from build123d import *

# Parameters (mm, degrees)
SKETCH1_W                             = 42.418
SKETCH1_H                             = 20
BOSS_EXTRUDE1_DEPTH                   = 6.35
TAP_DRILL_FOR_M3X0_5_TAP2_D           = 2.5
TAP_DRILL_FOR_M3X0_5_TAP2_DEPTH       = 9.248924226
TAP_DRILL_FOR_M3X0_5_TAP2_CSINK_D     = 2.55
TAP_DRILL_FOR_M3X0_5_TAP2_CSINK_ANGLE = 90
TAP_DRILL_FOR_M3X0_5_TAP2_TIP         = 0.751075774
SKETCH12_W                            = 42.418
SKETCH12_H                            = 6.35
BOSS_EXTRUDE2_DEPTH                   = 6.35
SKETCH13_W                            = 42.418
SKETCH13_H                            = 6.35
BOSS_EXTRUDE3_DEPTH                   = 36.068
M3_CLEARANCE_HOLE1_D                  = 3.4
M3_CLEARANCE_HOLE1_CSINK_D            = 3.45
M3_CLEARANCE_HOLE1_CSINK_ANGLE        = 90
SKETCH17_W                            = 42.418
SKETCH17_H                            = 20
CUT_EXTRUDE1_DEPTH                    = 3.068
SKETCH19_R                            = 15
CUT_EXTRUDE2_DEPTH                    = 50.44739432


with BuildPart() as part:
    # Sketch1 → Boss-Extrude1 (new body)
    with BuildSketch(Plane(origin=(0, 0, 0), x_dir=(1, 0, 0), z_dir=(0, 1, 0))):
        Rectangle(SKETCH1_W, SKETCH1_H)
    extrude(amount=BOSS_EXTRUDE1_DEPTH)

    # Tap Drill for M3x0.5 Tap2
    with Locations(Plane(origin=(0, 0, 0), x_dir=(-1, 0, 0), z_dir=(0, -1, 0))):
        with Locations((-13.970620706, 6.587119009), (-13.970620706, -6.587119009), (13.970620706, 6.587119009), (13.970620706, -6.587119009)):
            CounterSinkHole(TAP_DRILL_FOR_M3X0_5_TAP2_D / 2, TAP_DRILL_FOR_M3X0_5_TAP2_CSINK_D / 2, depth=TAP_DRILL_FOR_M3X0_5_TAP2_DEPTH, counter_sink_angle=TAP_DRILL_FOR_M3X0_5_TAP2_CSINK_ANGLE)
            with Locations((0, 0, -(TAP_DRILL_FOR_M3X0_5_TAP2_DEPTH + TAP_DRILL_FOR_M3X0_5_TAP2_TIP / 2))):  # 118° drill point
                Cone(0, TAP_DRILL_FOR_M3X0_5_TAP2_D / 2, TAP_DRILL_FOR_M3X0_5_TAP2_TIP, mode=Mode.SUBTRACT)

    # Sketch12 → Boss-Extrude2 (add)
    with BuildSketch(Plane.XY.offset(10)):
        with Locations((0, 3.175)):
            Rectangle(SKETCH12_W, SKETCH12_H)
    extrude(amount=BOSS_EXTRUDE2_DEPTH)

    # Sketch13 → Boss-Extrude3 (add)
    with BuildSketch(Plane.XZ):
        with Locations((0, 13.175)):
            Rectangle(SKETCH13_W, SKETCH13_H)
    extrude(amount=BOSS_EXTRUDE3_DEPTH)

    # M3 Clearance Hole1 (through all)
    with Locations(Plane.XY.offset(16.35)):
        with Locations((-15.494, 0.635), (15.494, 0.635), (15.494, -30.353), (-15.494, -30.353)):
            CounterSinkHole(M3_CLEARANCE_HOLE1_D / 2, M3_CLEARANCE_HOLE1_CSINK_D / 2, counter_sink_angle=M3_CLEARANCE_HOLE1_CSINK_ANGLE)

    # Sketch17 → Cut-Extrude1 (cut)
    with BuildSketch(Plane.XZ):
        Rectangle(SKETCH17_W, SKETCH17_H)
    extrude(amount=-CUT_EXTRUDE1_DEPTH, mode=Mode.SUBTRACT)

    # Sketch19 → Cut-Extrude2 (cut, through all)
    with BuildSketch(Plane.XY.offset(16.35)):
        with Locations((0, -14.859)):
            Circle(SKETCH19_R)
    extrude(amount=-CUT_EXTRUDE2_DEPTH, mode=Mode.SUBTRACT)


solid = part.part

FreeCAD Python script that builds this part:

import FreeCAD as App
import Part
import Sketcher


def add_polygon(sketch, points):
    """Adds a closed chain of lines whose ends are joined by coincident constraints."""
    first, n = sketch.GeometryCount, len(points)
    for a, b in zip(points, points[1:] + points[:1]):
        sketch.addGeometry(Part.LineSegment(App.Vector(*a, 0), App.Vector(*b, 0)), False)
    for i in range(n):
        sketch.addConstraint(Sketcher.Constraint("Coincident", first + i, 2, first + (i + 1) % n, 1))

doc = App.newDocument("Part")
body = doc.addObject("PartDesign::Body", "Body")

# Sketch on XZ plane
sketch1 = body.newObject("Sketcher::SketchObject", "Sketch")
sketch1.AttachmentSupport = (doc.getObject("XZ_Plane"), [""])
sketch1.MapMode = "FlatFace"
add_polygon(sketch1, [(-21, -10), (-21, 10), (21, 10), (21, -10)])  # lines 0-3
sketch1.addConstraint([
    Sketcher.Constraint("Vertical", 0),
    Sketcher.Constraint("Horizontal", 1),
    Sketcher.Constraint("Vertical", 2),
    Sketcher.Constraint("Horizontal", 3),
    Sketcher.Constraint("Symmetric", 0, 2, 2, 2, -1, 1),
    Sketcher.Constraint("DistanceY", 0, 1, 0, 2, 20.0),
    Sketcher.Constraint("DistanceX", 1, 1, 1, 2, 42.418),
])
pad1 = body.newObject("PartDesign::Pad", "Pad")
pad1.Profile = sketch1
pad1.Length = 6.35
pad1.Reversed = True

# Sketch on XZ plane
sketch2 = body.newObject("Sketcher::SketchObject", "Sketch001")
sketch2.AttachmentSupport = (doc.getObject("XZ_Plane"), [""])
sketch2.MapMode = "FlatFace"
sketch2.addGeometry([
    Part.Circle(App.Vector(14, -6.6, 0), App.Vector(0, 0, 1), 1.2),
    Part.Circle(App.Vector(14, 6.6, 0), App.Vector(0, 0, 1), 1.2),
    Part.Circle(App.Vector(-14, -6.6, 0), App.Vector(0, 0, 1), 1.2),
    Part.Circle(App.Vector(-14, 6.6, 0), App.Vector(0, 0, 1), 1.2),
], False)
sketch2.addConstraint([
    Sketcher.Constraint("Equal", 0, 1),
    Sketcher.Constraint("Equal", 1, 2),
    Sketcher.Constraint("Equal", 2, 3),
    Sketcher.Constraint("Symmetric", 1, 3, 2, 3, -1, 1),
    Sketcher.Constraint("Symmetric", 0, 3, 3, 3, -1, 1),
    Sketcher.Constraint("Symmetric", 0, 3, 2, 3, -2),
    Sketcher.Constraint("Diameter", 0, 2.5),
    Sketcher.Constraint("DistanceX", -1, 1, 0, 3, 13.970621),
    Sketcher.Constraint("DistanceY", 0, 3, -1, 1, 6.587119),
])
doc.recompute()
hole = body.newObject("PartDesign::Hole", "Hole")
hole.Profile = sketch2
hole.ThreadType = "None"
hole.Diameter = 2.5
hole.DepthType = "Dimension"
hole.Depth = 9.248924
hole.DrillPoint = "Angled"
hole.DrillPointAngle = 118
hole.HoleCutType = "Countersink"
hole.HoleCutDiameter = 2.55
hole.HoleCutCountersinkAngle = 90

# Sketch on XY plane
sketch3 = body.newObject("Sketcher::SketchObject", "Sketch002")
sketch3.AttachmentSupport = (doc.getObject("XY_Plane"), [""])
sketch3.MapMode = "FlatFace"
sketch3.AttachmentOffset = App.Placement(App.Vector(0, 0, 10), App.Rotation())
add_polygon(sketch3, [(-21, 6), (-21, 0), (21, 0), (21, 6)])  # lines 0-3
sketch3.addConstraint([
    Sketcher.Constraint("Vertical", 0),
    Sketcher.Constraint("Horizontal", 1),
    Sketcher.Constraint("Vertical", 2),
    Sketcher.Constraint("Horizontal", 3),
    Sketcher.Constraint("Symmetric", 0, 2, 1, 2, -1, 1),
    Sketcher.Constraint("DistanceY", 0, 2, 0, 1, 6.35),
    Sketcher.Constraint("DistanceX", 1, 1, 1, 2, 42.418),
])
pad2 = body.newObject("PartDesign::Pad", "Pad001")
pad2.Profile = sketch3
pad2.Length = 6.35

# Sketch on XZ plane
sketch4 = body.newObject("Sketcher::SketchObject", "Sketch003")
sketch4.AttachmentSupport = (doc.getObject("XZ_Plane"), [""])
sketch4.MapMode = "FlatFace"
add_polygon(sketch4, [(-21, 16), (-21, 10), (21, 10), (21, 16)])  # lines 0-3
sketch4.addConstraint([
    Sketcher.Constraint("Vertical", 0),
    Sketcher.Constraint("Horizontal", 1),
    Sketcher.Constraint("Vertical", 2),
    Sketcher.Constraint("Horizontal", 3),
    Sketcher.Constraint("DistanceY", -1, 1, 0, 2, 10.0),
    Sketcher.Constraint("DistanceY", 0, 2, 0, 1, 6.35),
    Sketcher.Constraint("DistanceX", 1, 1, 1, 2, 42.418),
    Sketcher.Constraint("DistanceX", 0, 2, -1, 1, 21.209),
])
pad3 = body.newObject("PartDesign::Pad", "Pad002")
pad3.Profile = sketch4
pad3.Length = 36.068

# Sketch on XY plane
sketch5 = body.newObject("Sketcher::SketchObject", "Sketch004")
sketch5.AttachmentSupport = (doc.getObject("XY_Plane"), [""])
sketch5.MapMode = "FlatFace"
sketch5.AttachmentOffset = App.Placement(App.Vector(0, 0, 16.35), App.Rotation())
sketch5.addGeometry([
    Part.Circle(App.Vector(-15.5, 0.6, 0), App.Vector(0, 0, 1), 1.7),
    Part.Circle(App.Vector(15.5, 0.6, 0), App.Vector(0, 0, 1), 1.7),
    Part.Circle(App.Vector(15.5, -30.4, 0), App.Vector(0, 0, 1), 1.7),
    Part.Circle(App.Vector(-15.5, -30.4, 0), App.Vector(0, 0, 1), 1.7),
], False)
sketch5.addConstraint([
    Sketcher.Constraint("Equal", 0, 1),
    Sketcher.Constraint("Equal", 1, 2),
    Sketcher.Constraint("Equal", 2, 3),
    Sketcher.Constraint("Symmetric", 0, 3, 1, 3, -2),
    Sketcher.Constraint("Symmetric", 2, 3, 3, 3, -2),
    Sketcher.Constraint("Vertical", 1, 3, 2, 3),
    Sketcher.Constraint("Diameter", 0, 3.4),
    Sketcher.Constraint("DistanceX", 0, 3, -1, 1, 15.494),
    Sketcher.Constraint("DistanceY", -1, 1, 0, 3, 0.635),
    Sketcher.Constraint("DistanceY", 2, 3, -1, 1, 30.353),
])
doc.recompute()
hole2 = body.newObject("PartDesign::Hole", "Hole001")
hole2.Profile = sketch5
hole2.ThreadType = "None"
hole2.Diameter = 3.4
hole2.DepthType = "ThroughAll"
hole2.HoleCutType = "Countersink"
hole2.HoleCutDiameter = 3.45
hole2.HoleCutCountersinkAngle = 90

# Sketch on XZ plane
sketch6 = body.newObject("Sketcher::SketchObject", "Sketch005")
sketch6.AttachmentSupport = (doc.getObject("XZ_Plane"), [""])
sketch6.MapMode = "FlatFace"
add_polygon(sketch6, [(-21, 10), (-21, -10), (21, -10), (21, 10)])  # lines 0-3
sketch6.addConstraint([
    Sketcher.Constraint("Vertical", 0),
    Sketcher.Constraint("Horizontal", 1),
    Sketcher.Constraint("Vertical", 2),
    Sketcher.Constraint("Horizontal", 3),
    Sketcher.Constraint("Symmetric", 0, 2, 2, 2, -1, 1),
    Sketcher.Constraint("DistanceY", 0, 2, 0, 1, 20.0),
    Sketcher.Constraint("DistanceX", 1, 1, 1, 2, 42.418),
])
pocket1 = body.newObject("PartDesign::Pocket", "Pocket")
pocket1.Profile = sketch6
pocket1.Length = 3.068

# Sketch on XY plane
sketch7 = body.newObject("Sketcher::SketchObject", "Sketch006")
sketch7.AttachmentSupport = (doc.getObject("XY_Plane"), [""])
sketch7.MapMode = "FlatFace"
sketch7.AttachmentOffset = App.Placement(App.Vector(0, 0, 16.35), App.Rotation())
sketch7.addGeometry(Part.Circle(App.Vector(0, -15, 0), App.Vector(0, 0, 1), 15), False)
sketch7.addConstraint([
    Sketcher.Constraint("PointOnObject", 0, 3, -2),
    Sketcher.Constraint("Diameter", 0, 30.0),
    Sketcher.Constraint("DistanceY", 0, 3, -1, 1, 14.859),
])
pocket2 = body.newObject("PartDesign::Pocket", "Pocket001")
pocket2.Profile = sketch7
pocket2.Type = "ThroughAll"

doc.recompute()
